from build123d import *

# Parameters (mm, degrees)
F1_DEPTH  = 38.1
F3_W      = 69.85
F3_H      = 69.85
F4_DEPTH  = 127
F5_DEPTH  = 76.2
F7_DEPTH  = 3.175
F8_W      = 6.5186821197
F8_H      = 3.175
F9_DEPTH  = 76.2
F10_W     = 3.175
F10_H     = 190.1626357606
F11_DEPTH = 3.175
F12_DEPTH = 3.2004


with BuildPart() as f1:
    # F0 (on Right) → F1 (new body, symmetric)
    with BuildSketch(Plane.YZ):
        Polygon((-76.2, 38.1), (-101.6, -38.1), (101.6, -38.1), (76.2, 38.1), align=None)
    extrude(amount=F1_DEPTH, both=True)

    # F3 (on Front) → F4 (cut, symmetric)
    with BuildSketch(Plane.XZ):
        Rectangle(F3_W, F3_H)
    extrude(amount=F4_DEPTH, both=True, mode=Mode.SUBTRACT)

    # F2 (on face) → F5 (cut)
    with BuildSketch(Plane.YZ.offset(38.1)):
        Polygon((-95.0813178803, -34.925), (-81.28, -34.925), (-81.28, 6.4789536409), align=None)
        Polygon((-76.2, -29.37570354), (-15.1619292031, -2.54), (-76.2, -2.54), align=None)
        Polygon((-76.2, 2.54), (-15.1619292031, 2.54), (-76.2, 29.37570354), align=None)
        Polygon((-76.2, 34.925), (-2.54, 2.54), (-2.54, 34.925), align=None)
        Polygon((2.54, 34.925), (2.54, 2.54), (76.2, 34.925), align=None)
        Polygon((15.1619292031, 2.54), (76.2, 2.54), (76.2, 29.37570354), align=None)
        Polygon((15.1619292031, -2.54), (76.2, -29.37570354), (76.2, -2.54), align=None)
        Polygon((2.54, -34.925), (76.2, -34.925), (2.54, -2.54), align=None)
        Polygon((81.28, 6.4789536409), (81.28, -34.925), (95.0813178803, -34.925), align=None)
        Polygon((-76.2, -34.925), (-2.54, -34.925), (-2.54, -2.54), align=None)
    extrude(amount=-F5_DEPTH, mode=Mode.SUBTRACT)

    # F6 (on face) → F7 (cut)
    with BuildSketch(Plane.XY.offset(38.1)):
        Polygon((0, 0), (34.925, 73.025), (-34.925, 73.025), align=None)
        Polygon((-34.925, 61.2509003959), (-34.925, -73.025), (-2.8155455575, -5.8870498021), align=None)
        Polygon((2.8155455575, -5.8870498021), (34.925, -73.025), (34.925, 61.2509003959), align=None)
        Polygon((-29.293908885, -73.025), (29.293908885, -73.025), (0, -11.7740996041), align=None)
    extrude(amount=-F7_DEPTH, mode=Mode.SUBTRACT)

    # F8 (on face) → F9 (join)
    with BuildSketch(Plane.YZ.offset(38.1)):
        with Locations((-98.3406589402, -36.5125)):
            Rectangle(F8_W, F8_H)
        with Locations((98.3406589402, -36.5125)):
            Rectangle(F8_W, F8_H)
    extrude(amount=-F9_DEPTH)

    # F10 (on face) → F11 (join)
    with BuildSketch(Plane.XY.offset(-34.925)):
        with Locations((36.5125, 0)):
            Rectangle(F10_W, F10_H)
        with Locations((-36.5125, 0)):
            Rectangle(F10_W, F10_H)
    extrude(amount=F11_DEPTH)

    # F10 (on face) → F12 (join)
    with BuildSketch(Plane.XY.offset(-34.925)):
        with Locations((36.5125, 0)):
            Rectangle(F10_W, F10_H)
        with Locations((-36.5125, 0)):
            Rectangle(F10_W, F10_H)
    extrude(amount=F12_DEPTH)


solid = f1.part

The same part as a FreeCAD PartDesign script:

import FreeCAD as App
import Part
import Sketcher

V = App.Vector
Q = App.Units.Quantity


def add_polygon(sketch, points):
    """Adds a closed chain of lines whose ends are joined by coincident constraints."""
    first, n = sketch.GeometryCount, len(points)
    for a, b in zip(points, points[1:] + points[:1]):
        sketch.addGeometry(Part.LineSegment(App.Vector(*a, 0), App.Vector(*b, 0)), False)
    for i in range(n):
        sketch.addConstraint(Sketcher.Constraint("Coincident", first + i, 2, first + (i + 1) % n, 1))

doc = App.newDocument("Part")
body = doc.addObject("PartDesign::Body", "Body")

# Sketch on YZ plane
sketch1 = body.newObject("Sketcher::SketchObject", "Sketch")
sketch1.AttachmentSupport = (doc.getObject("YZ_Plane"), [""])
sketch1.MapMode = "FlatFace"
add_polygon(sketch1, [(-76, 38), (-102, -38), (102, -38), (76, 38)])  # lines 0-3
sketch1.addConstraint([
    Sketcher.Constraint("Horizontal", 1),
    Sketcher.Constraint("Horizontal", 3),
    Sketcher.Constraint("Equal", 0, 2),
    Sketcher.Constraint("DistanceX", 1, 1, 1, 2, Q("8 in")),
    Sketcher.Constraint("DistanceX", 3, 2, 3, 1, Q("6 in")),
    Sketcher.Constraint("DistanceX", 0, 2, -1, 1, Q("4 in")),
    Sketcher.Constraint("DistanceY", 1, 2, 2, 2, Q("3 in")),
    Sketcher.Constraint("DistanceY", 0, 2, -1, 1, Q("1.5 in")),
])
pad1 = body.newObject("PartDesign::Pad", "Pad")
pad1.Profile = sketch1
pad1.Length = Q("3 in")
pad1.Midplane = True

# Sketch on XZ plane
sketch2 = body.newObject("Sketcher::SketchObject", "Sketch001")
sketch2.AttachmentSupport = (doc.getObject("XZ_Plane"), [""])
sketch2.MapMode = "FlatFace"
add_polygon(sketch2, [(-35, 35), (-35, -35), (35, -35), (35, 35)])  # lines 0-3
sketch2.addConstraint([
    Sketcher.Constraint("Vertical", 0),
    Sketcher.Constraint("Horizontal", 1),
    Sketcher.Constraint("Vertical", 2),
    Sketcher.Constraint("Horizontal", 3),
    Sketcher.Constraint("Symmetric", 0, 2, 2, 2, -1, 1),
    Sketcher.Constraint("Equal", 3, 0),
    Sketcher.Constraint("DistanceX", 1, 1, 1, 2, Q("2.75 in")),
])
pocket1 = body.newObject("PartDesign::Pocket", "Pocket")
pocket1.Profile = sketch2
pocket1.Length = Q("10 in")
pocket1.Midplane = True

# Sketch on YZ plane
sketch3 = body.newObject("Sketcher::SketchObject", "Sketch002")
sketch3.AttachmentSupport = (doc.getObject("YZ_Plane"), [""])
sketch3.MapMode = "FlatFace"
sketch3.AttachmentOffset = App.Placement(V(0, 0, 1.5 * 25.4), App.Rotation())
add_polygon(sketch3, [(-95, -35), (-81, -35), (-81, 6)])  # lines 0-2
add_polygon(sketch3, [(-76, -29), (-15, -3), (-76, -3)])  # lines 3-5
add_polygon(sketch3, [(-76, 3), (-15, 3), (-76, 29)])  # lines 6-8
add_polygon(sketch3, [(-76, 35), (-3, 3), (-3, 35)])  # lines 9-11
add_polygon(sketch3, [(3, 35), (3, 3), (76, 35)])  # lines 12-14
add_polygon(sketch3, [(15, 3), (76, 3), (76, 29)])  # lines 15-17
add_polygon(sketch3, [(15, -3), (76, -29), (76, -3)])  # lines 18-20
add_polygon(sketch3, [(3, -35), (76, -35), (3, -3)])  # lines 21-23
add_polygon(sketch3, [(81, 6), (81, -35), (95, -35)])  # lines 24-26
add_polygon(sketch3, [(-76, -35), (-3, -35), (-3, -3)])  # lines 27-29
sketch3.addConstraint([
    Sketcher.Constraint("Horizontal", 0),
    Sketcher.Constraint("Vertical", 1),
    Sketcher.Constraint("Horizontal", 4),
    Sketcher.Constraint("Vertical", 5),
    Sketcher.Constraint("Horizontal", 6),
    Sketcher.Constraint("Vertical", 8),
    Sketcher.Constraint("Vertical", 10),
    Sketcher.Constraint("Horizontal", 11),
    Sketcher.Constraint("Vertical", 12),
    Sketcher.Constraint("Horizontal", 14),
    Sketcher.Constraint("Horizontal", 15),
    Sketcher.Constraint("Vertical", 16),
    Sketcher.Constraint("Vertical", 19),
    Sketcher.Constraint("Horizontal", 20),
    Sketcher.Constraint("Horizontal", 21),
    Sketcher.Constraint("Vertical", 23),
    Sketcher.Constraint("Vertical", 24),
    Sketcher.Constraint("Horizontal", 25),
    Sketcher.Constraint("Horizontal", 27),
    Sketcher.Constraint("Vertical", 28),
    Sketcher.Constraint("Symmetric", 4, 2, 15, 2, -1, 1),
    Sketcher.Constraint("Symmetric", 7, 2, 18, 2, -1, 1),
    Sketcher.Constraint("Symmetric", 6, 2, 20, 2, -1, 1),
    Sketcher.Constraint("Symmetric", 11, 2, 21, 2, -1, 1),
    Sketcher.Constraint("Symmetric", 9, 2, 22, 2, -1, 1),
    Sketcher.Constraint("Symmetric", 14, 2, 27, 2, -1, 1),
    Sketcher.Constraint("Symmetric", 9, 2, 12, 2, -2),
    Sketcher.Constraint("Symmetric", 11, 2, 13, 2, -2),
    Sketcher.Constraint("Symmetric", 8, 2, 15, 2, -2),
    Sketcher.Constraint("Symmetric", 0, 2, 24, 2, -2),
    Sketcher.Constraint("Parallel", 7, 9),
    Sketcher.Constraint("Parallel", 3, 13),
    Sketcher.Constraint("Parallel", 13, 17),
    Sketcher.Constraint("Parallel", 17, 29),
    Sketcher.Constraint("Horizontal", 8, 2, 9, 2),
    Sketcher.Constraint("Horizontal", 7, 2, 16, 2),
    Sketcher.Constraint("Horizontal", 5, 2, 18, 2),
    Sketcher.Constraint("Horizontal", 2, 2, 21, 2),
    Sketcher.Constraint("Horizontal", 1, 2, 26, 2),
    Sketcher.Constraint("Horizontal", 22, 2, 28, 2),
    Sketcher.Constraint("Vertical", 8, 2, 11, 2),
    Sketcher.Constraint("Equal", 0, 25),
    Sketcher.Constraint("DistanceX", 11, 2, 11, 1, Q("2.9 in")),
    Sketcher.Constraint("DistanceX", 4, 2, -1, 1, Q("3 in")),
    Sketcher.Constraint("DistanceX", 0, 2, -1, 1, Q("3.2 in")),
    Sketcher.Constraint("DistanceY", 3, 2, -1, 1, Q("0.1 in")),
    Sketcher.Constraint("DistanceY", 10, 1, 10, 2, Q("1.275 in")),
    Sketcher.Constraint("Distance", 2, Q("43.643599 mm")),
    Sketcher.Constraint("DistanceX", 4, 2, 4, 1, Q("61.038071 mm")),
    Sketcher.Constraint("DistanceX", 0, 1, 0, 2, Q("13.801318 mm")),
])
pocket2 = body.newObject("PartDesign::Pocket", "Pocket001")
pocket2.Profile = sketch3
pocket2.Length = Q("3 in")

# Sketch on XY plane
sketch4 = body.newObject("Sketcher::SketchObject", "Sketch003")
sketch4.AttachmentSupport = (doc.getObject("XY_Plane"), [""])
sketch4.MapMode = "FlatFace"
sketch4.AttachmentOffset = App.Placement(V(0, 0, 1.5 * 25.4), App.Rotation())
add_polygon(sketch4, [(0, 0), (35, 73), (-35, 73)])  # lines 0-2
add_polygon(sketch4, [(-35, 61), (-35, -73), (-3, -6)])  # lines 3-5
add_polygon(sketch4, [(3, -6), (35, -73), (35, 61)])  # lines 6-8
add_polygon(sketch4, [(-29, -73), (29, -73), (0, -12)])  # lines 9-11
sketch4.addConstraint([
    Sketcher.Constraint("Horizontal", 1),
    Sketcher.Constraint("Vertical", 3),
    Sketcher.Constraint("Vertical", 7),
    Sketcher.Constraint("Horizontal", 9),
    Sketcher.Constraint("Coincident", 2, 2, -1, 1),
    Sketcher.Constraint("Symmetric", 0, 2, 3, 2, -1, 1),
    Sketcher.Constraint("Symmetric", 1, 2, 6, 2, -1, 1),
    Sketcher.Constraint("Symmetric", 5, 2, 7, 2, -2),
    Sketcher.Constraint("Symmetric", 4, 2, 8, 2, -2),
    Sketcher.Constraint("PointOnObject", 10, 2, -2),
    Sketcher.Constraint("Parallel", 0, 4),
    Sketcher.Constraint("Parallel", 2, 5),
    Sketcher.Constraint("Parallel", 6, 10),
    Sketcher.Constraint("Parallel", 8, 11),
    Sketcher.Constraint("Horizontal", 6, 2, 9, 2),
    Sketcher.Constraint("DistanceX", 1, 2, 1, 1, Q("2.75 in")),
    Sketcher.Constraint("DistanceY", 3, 2, 1, 2, Q("5.75 in")),
    Sketcher.Constraint("DistanceY", 3, 2, 3, 1, Q("134.2759 mm")),
    Sketcher.Constraint("DistanceY", 10, 2, -1, 1, Q("11.7741 mm")),
])
pocket3 = body.newObject("PartDesign::Pocket", "Pocket002")
pocket3.Profile = sketch4
pocket3.Length = Q("0.125 in")

# Sketch on YZ plane
sketch5 = body.newObject("Sketcher::SketchObject", "Sketch004")
sketch5.AttachmentSupport = (doc.getObject("YZ_Plane"), [""])
sketch5.MapMode = "FlatFace"
sketch5.AttachmentOffset = App.Placement(V(0, 0, 1.5 * 25.4), App.Rotation())
add_polygon(sketch5, [(-101.6, -34.9), (-101.6, -38.1), (-95.1, -38.1), (-95.1, -34.9)])  # lines 0-3
add_polygon(sketch5, [(95.1, -34.9), (95.1, -38.1), (101.6, -38.1), (101.6, -34.9)])  # lines 4-7
sketch5.addConstraint([
    Sketcher.Constraint("Vertical", 0),
    Sketcher.Constraint("Horizontal", 1),
    Sketcher.Constraint("Vertical", 2),
    Sketcher.Constraint("Horizontal", 3),
    Sketcher.Constraint("Vertical", 4),
    Sketcher.Constraint("Horizontal", 5),
    Sketcher.Constraint("Vertical", 6),
    Sketcher.Constraint("Horizontal", 7),
    Sketcher.Constraint("Symmetric", 1, 2, 4, 2, -2),
    Sketcher.Constraint("Symmetric", 3, 2, 6, 2, -2),
    Sketcher.Constraint("DistanceX", 0, 2, -1, 1, Q("4 in")),
    Sketcher.Constraint("DistanceY", 0, 2, -1, 1, Q("1.5 in")),
    Sketcher.Constraint("DistanceY", 0, 2, 0, 1, Q("0.125 in")),
    Sketcher.Constraint("DistanceX", 1, 1, 1, 2, Q("6.518682 mm")),
])
pad2 = body.newObject("PartDesign::Pad", "Pad001")
pad2.Profile = sketch5
pad2.Length = Q("3 in")
pad2.Reversed = True

# Sketch on XY plane
sketch6 = body.newObject("Sketcher::SketchObject", "Sketch005")
sketch6.AttachmentSupport = (doc.getObject("XY_Plane"), [""])
sketch6.MapMode = "FlatFace"
sketch6.AttachmentOffset = App.Placement(V(0, 0, -1.375 * 25.4), App.Rotation())
add_polygon(sketch6, [(34.9, 95.1), (34.9, -95.1), (38.1, -95.1), (38.1, 95.1)])  # lines 0-3
add_polygon(sketch6, [(-38.1, 95.1), (-38.1, -95.1), (-34.9, -95.1), (-34.9, 95.1)])  # lines 4-7
sketch6.addConstraint([
    Sketcher.Constraint("Vertical", 0),
    Sketcher.Constraint("Horizontal", 1),
    Sketcher.Constraint("Vertical", 2),
    Sketcher.Constraint("Horizontal", 3),
    Sketcher.Constraint("Vertical", 4),
    Sketcher.Constraint("Horizontal", 5),
    Sketcher.Constraint("Vertical", 6),
    Sketcher.Constraint("Horizontal", 7),
    Sketcher.Constraint("Symmetric", 2, 2, 4, 2, -1, 1),
    Sketcher.Constraint("Symmetric", 0, 2, 6, 2, -1, 1),
    Sketcher.Constraint("Horizontal", 1, 2, 4, 2),
    Sketcher.Constraint("DistanceX", 4, 2, 1, 2, Q("3 in")),
    Sketcher.Constraint("DistanceX", 1, 1, 1, 2, Q("0.125 in")),
    Sketcher.Constraint("DistanceY", 0, 2, 0, 1, Q("190.162636 mm")),
])
pad3 = body.newObject("PartDesign::Pad", "Pad002")
pad3.Profile = sketch6
pad3.Length = Q("0.125 in")

# Sketch on XY plane
sketch7 = body.newObject("Sketcher::SketchObject", "Sketch006")
sketch7.AttachmentSupport = (doc.getObject("XY_Plane"), [""])
sketch7.MapMode = "FlatFace"
sketch7.AttachmentOffset = App.Placement(V(0, 0, -1.375 * 25.4), App.Rotation())
add_polygon(sketch7, [(34.9, 95.1), (34.9, -95.1), (38.1, -95.1), (38.1, 95.1)])  # lines 0-3
add_polygon(sketch7, [(-38.1, 95.1), (-38.1, -95.1), (-34.9, -95.1), (-34.9, 95.1)])  # lines 4-7
sketch7.addConstraint([
    Sketcher.Constraint("Vertical", 0),
    Sketcher.Constraint("Horizontal", 1),
    Sketcher.Constraint("Vertical", 2),
    Sketcher.Constraint("Horizontal", 3),
    Sketcher.Constraint("Vertical", 4),
    Sketcher.Constraint("Horizontal", 5),
    Sketcher.Constraint("Vertical", 6),
    Sketcher.Constraint("Horizontal", 7),
    Sketcher.Constraint("Symmetric", 2, 2, 4, 2, -1, 1),
    Sketcher.Constraint("Symmetric", 0, 2, 6, 2, -1, 1),
    Sketcher.Constraint("Horizontal", 1, 2, 4, 2),
    Sketcher.Constraint("DistanceX", 4, 2, 1, 2, Q("3 in")),
    Sketcher.Constraint("DistanceX", 1, 1, 1, 2, Q("0.125 in")),
    Sketcher.Constraint("DistanceY", 0, 2, 0, 1, Q("190.162636 mm")),
])
pad4 = body.newObject("PartDesign::Pad", "Pad003")
pad4.Profile = sketch7
pad4.Length = Q("0.126 in")

doc.recompute()
